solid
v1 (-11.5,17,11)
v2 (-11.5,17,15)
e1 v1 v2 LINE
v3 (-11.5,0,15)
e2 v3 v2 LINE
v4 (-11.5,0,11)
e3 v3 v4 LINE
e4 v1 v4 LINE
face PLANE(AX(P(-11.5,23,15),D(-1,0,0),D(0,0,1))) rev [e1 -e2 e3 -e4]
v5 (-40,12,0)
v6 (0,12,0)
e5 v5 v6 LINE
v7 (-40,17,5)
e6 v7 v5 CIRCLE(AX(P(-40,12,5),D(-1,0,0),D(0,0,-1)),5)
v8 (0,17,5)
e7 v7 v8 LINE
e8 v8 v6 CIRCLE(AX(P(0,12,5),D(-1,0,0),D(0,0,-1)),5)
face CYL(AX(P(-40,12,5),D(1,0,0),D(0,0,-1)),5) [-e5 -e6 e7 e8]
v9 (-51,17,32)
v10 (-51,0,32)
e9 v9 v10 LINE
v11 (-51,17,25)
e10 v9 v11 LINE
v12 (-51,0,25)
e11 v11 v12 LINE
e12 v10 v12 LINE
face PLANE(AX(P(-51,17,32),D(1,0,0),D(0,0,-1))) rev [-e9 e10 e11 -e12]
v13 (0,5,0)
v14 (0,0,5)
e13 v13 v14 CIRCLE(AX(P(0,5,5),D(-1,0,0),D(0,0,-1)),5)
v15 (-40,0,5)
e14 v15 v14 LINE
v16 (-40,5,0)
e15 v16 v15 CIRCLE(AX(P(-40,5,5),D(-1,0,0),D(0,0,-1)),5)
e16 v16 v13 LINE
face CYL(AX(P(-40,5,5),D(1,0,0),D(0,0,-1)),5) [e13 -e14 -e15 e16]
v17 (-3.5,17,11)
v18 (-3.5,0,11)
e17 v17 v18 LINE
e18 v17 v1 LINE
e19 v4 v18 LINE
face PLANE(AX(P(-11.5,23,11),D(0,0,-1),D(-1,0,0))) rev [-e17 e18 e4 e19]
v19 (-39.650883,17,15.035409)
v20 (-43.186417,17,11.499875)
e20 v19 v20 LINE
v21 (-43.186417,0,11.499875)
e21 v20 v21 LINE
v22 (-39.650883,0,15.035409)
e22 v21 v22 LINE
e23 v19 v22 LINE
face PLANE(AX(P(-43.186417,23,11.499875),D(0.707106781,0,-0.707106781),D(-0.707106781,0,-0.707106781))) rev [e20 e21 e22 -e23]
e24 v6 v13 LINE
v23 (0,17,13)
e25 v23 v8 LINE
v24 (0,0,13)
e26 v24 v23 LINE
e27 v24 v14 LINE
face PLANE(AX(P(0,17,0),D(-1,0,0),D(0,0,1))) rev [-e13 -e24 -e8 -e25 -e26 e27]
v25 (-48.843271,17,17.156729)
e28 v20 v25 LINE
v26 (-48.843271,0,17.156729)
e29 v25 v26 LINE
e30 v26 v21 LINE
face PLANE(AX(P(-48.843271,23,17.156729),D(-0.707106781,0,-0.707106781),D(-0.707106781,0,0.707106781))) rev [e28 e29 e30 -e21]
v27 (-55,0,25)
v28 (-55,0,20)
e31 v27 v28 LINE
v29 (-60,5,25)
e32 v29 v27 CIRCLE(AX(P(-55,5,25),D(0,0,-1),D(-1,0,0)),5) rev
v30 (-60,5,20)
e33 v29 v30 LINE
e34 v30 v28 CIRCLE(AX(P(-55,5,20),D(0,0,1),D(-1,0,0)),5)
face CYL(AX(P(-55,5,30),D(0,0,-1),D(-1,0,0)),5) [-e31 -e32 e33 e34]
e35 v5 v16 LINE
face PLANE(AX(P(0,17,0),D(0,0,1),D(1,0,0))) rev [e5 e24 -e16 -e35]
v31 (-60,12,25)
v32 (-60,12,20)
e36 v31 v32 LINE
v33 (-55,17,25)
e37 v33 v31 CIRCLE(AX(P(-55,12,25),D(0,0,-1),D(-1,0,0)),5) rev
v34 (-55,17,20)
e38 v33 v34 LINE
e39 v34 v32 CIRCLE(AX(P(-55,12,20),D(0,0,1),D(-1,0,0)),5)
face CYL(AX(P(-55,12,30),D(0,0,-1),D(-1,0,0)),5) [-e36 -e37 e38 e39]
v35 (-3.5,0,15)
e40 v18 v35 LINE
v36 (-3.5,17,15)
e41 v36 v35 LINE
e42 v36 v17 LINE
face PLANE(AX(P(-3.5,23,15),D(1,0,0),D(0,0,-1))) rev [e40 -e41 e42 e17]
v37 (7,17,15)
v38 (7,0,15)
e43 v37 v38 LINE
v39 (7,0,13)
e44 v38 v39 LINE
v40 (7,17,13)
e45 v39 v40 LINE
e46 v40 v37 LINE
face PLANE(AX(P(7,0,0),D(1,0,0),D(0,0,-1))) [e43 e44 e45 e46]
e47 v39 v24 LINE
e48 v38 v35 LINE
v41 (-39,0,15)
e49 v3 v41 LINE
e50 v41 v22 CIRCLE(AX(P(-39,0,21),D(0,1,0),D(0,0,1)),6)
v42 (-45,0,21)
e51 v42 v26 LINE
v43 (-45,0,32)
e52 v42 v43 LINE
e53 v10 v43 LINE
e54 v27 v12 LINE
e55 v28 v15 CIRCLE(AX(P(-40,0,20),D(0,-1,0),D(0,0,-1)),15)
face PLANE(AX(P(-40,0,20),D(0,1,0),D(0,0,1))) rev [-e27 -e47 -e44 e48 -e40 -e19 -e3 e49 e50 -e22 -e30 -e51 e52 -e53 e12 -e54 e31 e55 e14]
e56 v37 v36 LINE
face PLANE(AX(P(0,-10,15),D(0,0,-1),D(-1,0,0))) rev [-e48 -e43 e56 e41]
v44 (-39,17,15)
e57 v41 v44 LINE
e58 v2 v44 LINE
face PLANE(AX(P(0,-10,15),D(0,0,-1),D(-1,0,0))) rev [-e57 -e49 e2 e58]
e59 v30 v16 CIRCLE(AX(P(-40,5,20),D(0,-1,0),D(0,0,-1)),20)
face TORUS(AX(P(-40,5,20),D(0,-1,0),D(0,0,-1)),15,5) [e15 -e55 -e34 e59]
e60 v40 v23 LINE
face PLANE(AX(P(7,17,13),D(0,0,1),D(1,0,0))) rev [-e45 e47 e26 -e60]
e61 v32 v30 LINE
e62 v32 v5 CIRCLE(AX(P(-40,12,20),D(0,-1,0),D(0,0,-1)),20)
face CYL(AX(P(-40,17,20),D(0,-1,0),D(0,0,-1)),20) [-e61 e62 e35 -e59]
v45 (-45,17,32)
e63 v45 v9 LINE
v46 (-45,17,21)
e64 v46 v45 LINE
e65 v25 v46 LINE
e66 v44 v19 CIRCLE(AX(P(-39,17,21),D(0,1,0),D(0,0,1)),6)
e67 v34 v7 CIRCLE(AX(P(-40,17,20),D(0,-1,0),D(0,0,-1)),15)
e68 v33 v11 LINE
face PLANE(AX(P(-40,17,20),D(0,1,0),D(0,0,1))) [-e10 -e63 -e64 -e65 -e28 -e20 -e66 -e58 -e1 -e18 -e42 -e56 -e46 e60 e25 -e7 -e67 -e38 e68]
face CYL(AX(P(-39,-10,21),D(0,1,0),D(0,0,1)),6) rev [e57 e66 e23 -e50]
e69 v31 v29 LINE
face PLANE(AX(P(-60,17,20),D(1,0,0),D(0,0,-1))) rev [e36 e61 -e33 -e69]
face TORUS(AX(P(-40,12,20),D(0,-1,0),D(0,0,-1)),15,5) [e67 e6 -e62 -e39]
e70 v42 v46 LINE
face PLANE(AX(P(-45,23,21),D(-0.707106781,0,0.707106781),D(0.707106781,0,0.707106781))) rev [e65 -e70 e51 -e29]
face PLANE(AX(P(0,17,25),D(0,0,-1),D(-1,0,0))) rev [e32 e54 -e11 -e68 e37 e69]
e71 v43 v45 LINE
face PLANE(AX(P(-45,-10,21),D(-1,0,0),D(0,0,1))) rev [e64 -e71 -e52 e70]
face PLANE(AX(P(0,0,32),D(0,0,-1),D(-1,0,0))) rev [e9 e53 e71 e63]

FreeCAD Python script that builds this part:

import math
import FreeCAD as App
import Part
import Sketcher
Q = App.Units.Quantity


def add_polygon(sketch, points):
    """Adds a closed chain of lines whose ends are joined by coincident constraints."""
    first, n = sketch.GeometryCount, len(points)
    for a, b in zip(points, points[1:] + points[:1]):
        sketch.addGeometry(Part.LineSegment(App.Vector(*a, 0), App.Vector(*b, 0)), False)
    for i in range(n):
        sketch.addConstraint(Sketcher.Constraint("Coincident", first + i, 2, first + (i + 1) % n, 1))

doc = App.newDocument("Part")
body = doc.addObject("PartDesign::Body", "Body")

# Sketch on XZ plane
sketch1 = doc.addObject("Sketcher::SketchObject", "Sketch")
body.addObject(sketch1)
sketch1.AttachmentSupport = (doc.XZ_Plane, [""])
sketch1.MapMode = "FlatFace"
sketch1.addGeometry(Part.LineSegment(App.Vector(0, 0, 0), App.Vector(-40, 0, 0)), False)
sketch1.addGeometry(Part.ArcOfCircle(Part.Circle(App.Vector(-40, 20, 0), App.Vector(0, 0, 1), 20), math.radians(180), math.radians(270)), False)
sketch1.addGeometry(Part.LineSegment(App.Vector(-60, 20, 0), App.Vector(-60, 25, 0)), False)
sketch1.addGeometry(Part.LineSegment(App.Vector(-60, 25, 0), App.Vector(0, 25, 0)), False)
sketch1.addGeometry(Part.LineSegment(App.Vector(0, 25, 0), App.Vector(0, 0, 0)), False)
sketch1.addConstraint(Sketcher.Constraint("Tangent", 0, 2, 1, 2))
sketch1.addConstraint(Sketcher.Constraint("Tangent", 1, 1, 2, 1))
sketch1.addConstraint(Sketcher.Constraint("Coincident", 2, 2, 3, 1))
sketch1.addConstraint(Sketcher.Constraint("Coincident", 3, 2, 4, 1))
sketch1.addConstraint(Sketcher.Constraint("Coincident", 4, 2, 0, 1))
sketch1.addConstraint(Sketcher.Constraint("Horizontal", 0))
sketch1.addConstraint(Sketcher.Constraint("Vertical", 2))
sketch1.addConstraint(Sketcher.Constraint("Horizontal", 3))
sketch1.addConstraint(Sketcher.Constraint("Vertical", 4))
sketch1.addConstraint(Sketcher.Constraint("Coincident", 4, 2, -1, 1))
sketch1.addConstraint(Sketcher.Constraint("Radius", 1, Q("20 mm")))
sketch1.addConstraint(Sketcher.Constraint("DistanceX", 0, 2, 0, 1, Q("40 mm")))
sketch1.addConstraint(Sketcher.Constraint("DistanceY", 2, 1, 2, 2, Q("5 mm")))
pad1 = doc.addObject("PartDesign::Pad", "Pad")
body.addObject(pad1)
pad1.Profile = sketch1
pad1.Length = 17
pad1.Reversed = True

# Sketch on YZ plane
sketch2 = doc.addObject("Sketcher::SketchObject", "Sketch001")
body.addObject(sketch2)
sketch2.AttachmentSupport = (doc.YZ_Plane, [""])
sketch2.MapMode = "FlatFace"
sketch2.addGeometry(Part.LineSegment(App.Vector(0, 5, 0), App.Vector(0, 0, 0)), False)
sketch2.addGeometry(Part.LineSegment(App.Vector(0, 0, 0), App.Vector(5, 0, 0)), False)
sketch2.addGeometry(Part.ArcOfCircle(Part.Circle(App.Vector(5, 5, 0), App.Vector(0, 0, 1), 5), math.radians(180), math.radians(270)), False)
sketch2.addGeometry(Part.LineSegment(App.Vector(12, 0, 0), App.Vector(17, 0, 0)), False)
sketch2.addGeometry(Part.LineSegment(App.Vector(17, 0, 0), App.Vector(17, 5, 0)), False)
sketch2.addGeometry(Part.ArcOfCircle(Part.Circle(App.Vector(12, 5, 0), App.Vector(0, 0, 1), 5), math.radians(-90), math.radians(0)), False)
sketch2.addConstraint(Sketcher.Constraint("Coincident", 0, 2, 1, 1))
sketch2.addConstraint(Sketcher.Constraint("Tangent", 1, 2, 2, 2))
sketch2.addConstraint(Sketcher.Constraint("Tangent", 2, 1, 0, 1))
sketch2.addConstraint(Sketcher.Constraint("Coincident", 3, 2, 4, 1))
sketch2.addConstraint(Sketcher.Constraint("Tangent", 4, 2, 5, 2))
sketch2.addConstraint(Sketcher.Constraint("Tangent", 5, 1, 3, 1))
sketch2.addConstraint(Sketcher.Constraint("Vertical", 0))
sketch2.addConstraint(Sketcher.Constraint("Horizontal", 1))
sketch2.addConstraint(Sketcher.Constraint("Horizontal", 3))
sketch2.addConstraint(Sketcher.Constraint("Vertical", 4))
sketch2.addConstraint(Sketcher.Constraint("Coincident", 0, 2, -1, 1))
sketch2.addConstraint(Sketcher.Constraint("Equal", 2, 5))
sketch2.addConstraint(Sketcher.Constraint("PointOnObject", 3, 2, -1))
sketch2.addConstraint(Sketcher.Constraint("Radius", 2, Q("5 mm")))
sketch2.addConstraint(Sketcher.Constraint("DistanceX", -1, 1, 5, 3, Q("12 mm")))
pocket1 = doc.addObject("PartDesign::Pocket", "Pocket")
body.addObject(pocket1)
pocket1.Profile = sketch2
pocket1.Length = 40

# Sketch on YZ plane
sketch3 = doc.addObject("Sketcher::SketchObject", "Sketch002")
body.addObject(sketch3)
sketch3.AttachmentSupport = (doc.YZ_Plane, [""])
sketch3.MapMode = "FlatFace"
sketch3.AttachmentOffset = App.Placement(App.Vector(0, 0, -40), App.Rotation())
sketch3.addGeometry(Part.LineSegment(App.Vector(17, 0, 0), App.Vector(17, 5, 0)), False)
sketch3.addGeometry(Part.ArcOfCircle(Part.Circle(App.Vector(12, 5, 0), App.Vector(0, 0, 1), 5), math.radians(-90), math.radians(0)), False)
sketch3.addGeometry(Part.LineSegment(App.Vector(12, 0, 0), App.Vector(17, 0, 0)), False)
sketch3.addGeometry(Part.LineSegment(App.Vector(0, 0, 0), App.Vector(5, 0, 0)), False)
sketch3.addGeometry(Part.ArcOfCircle(Part.Circle(App.Vector(5, 5, 0), App.Vector(0, 0, 1), 5), math.radians(180), math.radians(270)), False)
sketch3.addGeometry(Part.LineSegment(App.Vector(0, 5, 0), App.Vector(0, 0, 0)), False)
sketch3.addGeometry(Part.LineSegment(App.Vector(0, 20, 0), App.Vector(17, 20, 0)), True)  # axis
sketch3.addConstraint(Sketcher.Constraint("Tangent", 0, 2, 1, 2))
sketch3.addConstraint(Sketcher.Constraint("Tangent", 1, 1, 2, 1))
sketch3.addConstraint(Sketcher.Constraint("Coincident", 2, 2, 0, 1))
sketch3.addConstraint(Sketcher.Constraint("Tangent", 3, 2, 4, 2))
sketch3.addConstraint(Sketcher.Constraint("Tangent", 4, 1, 5, 1))
sketch3.addConstraint(Sketcher.Constraint("Coincident", 5, 2, 3, 1))
sketch3.addConstraint(Sketcher.Constraint("Vertical", 0))
sketch3.addConstraint(Sketcher.Constraint("Horizontal", 2))
sketch3.addConstraint(Sketcher.Constraint("Horizontal", 3))
sketch3.addConstraint(Sketcher.Constraint("Vertical", 5))
sketch3.addConstraint(Sketcher.Constraint("Horizontal", 6))
sketch3.addConstraint(Sketcher.Constraint("Coincident", 5, 2, -1, 1))
sketch3.addConstraint(Sketcher.Constraint("Equal", 1, 4))
sketch3.addConstraint(Sketcher.Constraint("PointOnObject", 1, 1, -1))
sketch3.addConstraint(Sketcher.Constraint("PointOnObject", 6, 1, -2))
sketch3.addConstraint(Sketcher.Constraint("Vertical", 2, 2, 6, 2))
sketch3.addConstraint(Sketcher.Constraint("Radius", 1, Q("5 mm")))
sketch3.addConstraint(Sketcher.Constraint("DistanceX", 6, 1, 6, 2, Q("17 mm")))
sketch3.addConstraint(Sketcher.Constraint("DistanceY", -1, 1, 6, 1, Q("20 mm")))
groove = doc.addObject("PartDesign::Groove", "Groove")
body.addObject(groove)
groove.Profile = sketch3
groove.ReferenceAxis = (sketch3, ["Axis0"])
groove.Angle = 90

# Sketch on XY plane
sketch4 = doc.addObject("Sketcher::SketchObject", "Sketch003")
body.addObject(sketch4)
sketch4.AttachmentSupport = (doc.XY_Plane, [""])
sketch4.MapMode = "FlatFace"
sketch4.AttachmentOffset = App.Placement(App.Vector(0, 0, 20), App.Rotation())
sketch4.addGeometry(Part.LineSegment(App.Vector(-60, 17, 0), App.Vector(-55, 17, 0)), False)
sketch4.addGeometry(Part.ArcOfCircle(Part.Circle(App.Vector(-55, 12, 0), App.Vector(0, 0, 1), 5), math.radians(90), math.radians(180)), False)
sketch4.addGeometry(Part.LineSegment(App.Vector(-60, 12, 0), App.Vector(-60, 17, 0)), False)
sketch4.addGeometry(Part.LineSegment(App.Vector(-60, 0, 0), App.Vector(-60, 5, 0)), False)
sketch4.addGeometry(Part.ArcOfCircle(Part.Circle(App.Vector(-55, 5, 0), App.Vector(0, 0, 1), 5), math.radians(180), math.radians(270)), False)
sketch4.addGeometry(Part.LineSegment(App.Vector(-55, 0, 0), App.Vector(-60, 0, 0)), False)
sketch4.addConstraint(Sketcher.Constraint("Tangent", 0, 2, 1, 1))
sketch4.addConstraint(Sketcher.Constraint("Tangent", 1, 2, 2, 1))
sketch4.addConstraint(Sketcher.Constraint("Coincident", 2, 2, 0, 1))
sketch4.addConstraint(Sketcher.Constraint("Tangent", 3, 2, 4, 1))
sketch4.addConstraint(Sketcher.Constraint("Tangent", 4, 2, 5, 1))
sketch4.addConstraint(Sketcher.Constraint("Coincident", 5, 2, 3, 1))
sketch4.addConstraint(Sketcher.Constraint("Horizontal", 0))
sketch4.addConstraint(Sketcher.Constraint("Vertical", 2))
sketch4.addConstraint(Sketcher.Constraint("Vertical", 3))
sketch4.addConstraint(Sketcher.Constraint("Horizontal", 5))
sketch4.addConstraint(Sketcher.Constraint("Equal", 1, 4))
sketch4.addConstraint(Sketcher.Constraint("PointOnObject", 4, 2, -1))
sketch4.addConstraint(Sketcher.Constraint("Vertical", 1, 3, 4, 3))
sketch4.addConstraint(Sketcher.Constraint("Radius", 1, Q("5 mm")))
sketch4.addConstraint(Sketcher.Constraint("DistanceX", 1, 3, -1, 1, Q("55 mm")))
sketch4.addConstraint(Sketcher.Constraint("DistanceY", -1, 1, 1, 3, Q("12 mm")))
pocket2 = doc.addObject("PartDesign::Pocket", "Pocket001")
body.addObject(pocket2)
pocket2.Profile = sketch4
pocket2.Length = 10
pocket2.Reversed = True

# Sketch on XZ plane
sketch5 = doc.addObject("Sketcher::SketchObject", "Sketch004")
body.addObject(sketch5)
sketch5.AttachmentSupport = (doc.XZ_Plane, [""])
sketch5.MapMode = "FlatFace"
sketch5.AttachmentOffset = App.Placement(App.Vector(0, 0, -17), App.Rotation())
sketch5.addGeometry(Part.LineSegment(App.Vector(0, 15, 0), App.Vector(-39, 15, 0)), False)
sketch5.addGeometry(Part.ArcOfCircle(Part.Circle(App.Vector(-39, 21, 0), App.Vector(0, 0, 1), 6), math.radians(180), math.radians(270)), False)
sketch5.addGeometry(Part.LineSegment(App.Vector(-45, 21, 0), App.Vector(-45, 25, 0)), False)
sketch5.addGeometry(Part.LineSegment(App.Vector(-45, 25, 0), App.Vector(0, 25, 0)), False)
sketch5.addGeometry(Part.LineSegment(App.Vector(0, 25, 0), App.Vector(0, 15, 0)), False)
sketch5.addConstraint(Sketcher.Constraint("Tangent", 0, 2, 1, 2))
sketch5.addConstraint(Sketcher.Constraint("Tangent", 1, 1, 2, 1))
sketch5.addConstraint(Sketcher.Constraint("Coincident", 2, 2, 3, 1))
sketch5.addConstraint(Sketcher.Constraint("Coincident", 3, 2, 4, 1))
sketch5.addConstraint(Sketcher.Constraint("Coincident", 4, 2, 0, 1))
sketch5.addConstraint(Sketcher.Constraint("Horizontal", 0))
sketch5.addConstraint(Sketcher.Constraint("Vertical", 2))
sketch5.addConstraint(Sketcher.Constraint("Horizontal", 3))
sketch5.addConstraint(Sketcher.Constraint("Vertical", 4))
sketch5.addConstraint(Sketcher.Constraint("PointOnObject", 3, 2, -2))
sketch5.addConstraint(Sketcher.Constraint("Radius", 1, Q("6 mm")))
sketch5.addConstraint(Sketcher.Constraint("DistanceX", 0, 2, 0, 1, Q("39 mm")))
sketch5.addConstraint(Sketcher.Constraint("DistanceY", 2, 1, 2, 2, Q("4 mm")))
sketch5.addConstraint(Sketcher.Constraint("DistanceY", -1, 1, 1, 3, Q("21 mm")))
pocket3 = doc.addObject("PartDesign::Pocket", "Pocket002")
body.addObject(pocket3)
pocket3.Profile = sketch5
pocket3.Length = 27
pocket3.Reversed = True

# Sketch on XY plane
sketch6 = doc.addObject("Sketcher::SketchObject", "Sketch005")
body.addObject(sketch6)
sketch6.AttachmentSupport = (doc.XY_Plane, [""])
sketch6.MapMode = "FlatFace"
sketch6.AttachmentOffset = App.Placement(App.Vector(0, 0, 25), App.Rotation())
add_polygon(sketch6, [(-51, 17), (-51, 0), (-45, 0), (-45, 17)])  # lines 0-3
sketch6.addConstraint(Sketcher.Constraint("Vertical", 0))
sketch6.addConstraint(Sketcher.Constraint("Horizontal", 1))
sketch6.addConstraint(Sketcher.Constraint("Vertical", 2))
sketch6.addConstraint(Sketcher.Constraint("Horizontal", 3))
sketch6.addConstraint(Sketcher.Constraint("PointOnObject", 0, 2, -1))
sketch6.addConstraint(Sketcher.Constraint("DistanceX", 1, 1, 1, 2, Q("6 mm")))
sketch6.addConstraint(Sketcher.Constraint("DistanceY", 0, 2, 0, 1, Q("17 mm")))
sketch6.addConstraint(Sketcher.Constraint("DistanceX", 0, 2, -1, 1, Q("51 mm")))
pad2 = doc.addObject("PartDesign::Pad", "Pad001")
body.addObject(pad2)
pad2.Profile = sketch6
pad2.Length = 7

# Sketch on YZ plane
sketch7 = doc.addObject("Sketcher::SketchObject", "Sketch006")
body.addObject(sketch7)
sketch7.AttachmentSupport = (doc.YZ_Plane, [""])
sketch7.MapMode = "FlatFace"
add_polygon(sketch7, [(17, 15), (0, 15), (0, 13), (17, 13)])  # lines 0-3
sketch7.addConstraint(Sketcher.Constraint("Horizontal", 0))
sketch7.addConstraint(Sketcher.Constraint("Vertical", 1))
sketch7.addConstraint(Sketcher.Constraint("Horizontal", 2))
sketch7.addConstraint(Sketcher.Constraint("Vertical", 3))
sketch7.addConstraint(Sketcher.Constraint("PointOnObject", 0, 2, -2))
sketch7.addConstraint(Sketcher.Constraint("DistanceX", 0, 2, 0, 1, Q("17 mm")))
sketch7.addConstraint(Sketcher.Constraint("DistanceY", 1, 2, 1, 1, Q("2 mm")))
sketch7.addConstraint(Sketcher.Constraint("DistanceY", -1, 1, 0, 2, Q("15 mm")))
pad3 = doc.addObject("PartDesign::Pad", "Pad002")
body.addObject(pad3)
pad3.Profile = sketch7
pad3.Length = 7

# Sketch on XZ plane
sketch8 = doc.addObject("Sketcher::SketchObject", "Sketch007")
body.addObject(sketch8)
sketch8.AttachmentSupport = (doc.XZ_Plane, [""])
sketch8.MapMode = "FlatFace"
sketch8.AttachmentOffset = App.Placement(App.Vector(0, 0, -23), App.Rotation())
add_polygon(sketch8, [(-11.5, 15), (-11.5, 11), (-3.5, 11), (-3.5, 15)])  # lines 0-3
sketch8.addGeometry(Part.LineSegment(App.Vector(-45, 21, 0), App.Vector(-48.8, 17.2, 0)), False)  # 4
sketch8.addGeometry(Part.LineSegment(App.Vector(-48.8, 17.2, 0), App.Vector(-43.2, 11.5, 0)), False)  # 5
sketch8.addGeometry(Part.LineSegment(App.Vector(-43.2, 11.5, 0), App.Vector(-39.7, 15, 0)), False)  # 6
sketch8.addGeometry(Part.ArcOfCircle(Part.Circle(App.Vector(-39, 21, 0), App.Vector(0, 0, 1), 6), math.radians(-180), math.radians(-96)), False)  # 7
sketch8.addConstraint(Sketcher.Constraint("Coincident", 4, 2, 5, 1))
sketch8.addConstraint(Sketcher.Constraint("Coincident", 5, 2, 6, 1))
sketch8.addConstraint(Sketcher.Constraint("Coincident", 6, 2, 7, 2))
sketch8.addConstraint(Sketcher.Constraint("Coincident", 7, 1, 4, 1))
sketch8.addConstraint(Sketcher.Constraint("Vertical", 0))
sketch8.addConstraint(Sketcher.Constraint("Horizontal", 1))
sketch8.addConstraint(Sketcher.Constraint("Vertical", 2))
sketch8.addConstraint(Sketcher.Constraint("Horizontal", 3))
sketch8.addConstraint(Sketcher.Constraint("Perpendicular", 4, 5))
sketch8.addConstraint(Sketcher.Constraint("Perpendicular", 5, 6))
sketch8.addConstraint(Sketcher.Constraint("Radius", 7, Q("6 mm")))
sketch8.addConstraint(Sketcher.Constraint("DistanceX", 1, 1, 1, 2, Q("8 mm")))
sketch8.addConstraint(Sketcher.Constraint("DistanceY", 0, 2, 0, 1, Q("4 mm")))
sketch8.addConstraint(Sketcher.Constraint("Angle", 4, Q("-135 deg")))
sketch8.addConstraint(Sketcher.Constraint("Distance", 5, Q("8 mm")))
sketch8.addConstraint(Sketcher.Constraint("Distance", 6, Q("5 mm")))
sketch8.addConstraint(Sketcher.Constraint("DistanceX", 7, 3, -1, 1, Q("39 mm")))
sketch8.addConstraint(Sketcher.Constraint("DistanceY", -1, 1, 7, 3, Q("21 mm")))
sketch8.addConstraint(Sketcher.Constraint("DistanceY", -1, 1, 0, 2, Q("11 mm")))
sketch8.addConstraint(Sketcher.Constraint("DistanceY", -1, 1, 7, 1, Q("21 mm")))
sketch8.addConstraint(Sketcher.Constraint("DistanceX", 0, 2, -1, 1, Q("11.5 mm")))
pocket4 = doc.addObject("PartDesign::Pocket", "Pocket003")
body.addObject(pocket4)
pocket4.Profile = sketch8
pocket4.Length = 23
pocket4.Reversed = True

doc.recompute()
